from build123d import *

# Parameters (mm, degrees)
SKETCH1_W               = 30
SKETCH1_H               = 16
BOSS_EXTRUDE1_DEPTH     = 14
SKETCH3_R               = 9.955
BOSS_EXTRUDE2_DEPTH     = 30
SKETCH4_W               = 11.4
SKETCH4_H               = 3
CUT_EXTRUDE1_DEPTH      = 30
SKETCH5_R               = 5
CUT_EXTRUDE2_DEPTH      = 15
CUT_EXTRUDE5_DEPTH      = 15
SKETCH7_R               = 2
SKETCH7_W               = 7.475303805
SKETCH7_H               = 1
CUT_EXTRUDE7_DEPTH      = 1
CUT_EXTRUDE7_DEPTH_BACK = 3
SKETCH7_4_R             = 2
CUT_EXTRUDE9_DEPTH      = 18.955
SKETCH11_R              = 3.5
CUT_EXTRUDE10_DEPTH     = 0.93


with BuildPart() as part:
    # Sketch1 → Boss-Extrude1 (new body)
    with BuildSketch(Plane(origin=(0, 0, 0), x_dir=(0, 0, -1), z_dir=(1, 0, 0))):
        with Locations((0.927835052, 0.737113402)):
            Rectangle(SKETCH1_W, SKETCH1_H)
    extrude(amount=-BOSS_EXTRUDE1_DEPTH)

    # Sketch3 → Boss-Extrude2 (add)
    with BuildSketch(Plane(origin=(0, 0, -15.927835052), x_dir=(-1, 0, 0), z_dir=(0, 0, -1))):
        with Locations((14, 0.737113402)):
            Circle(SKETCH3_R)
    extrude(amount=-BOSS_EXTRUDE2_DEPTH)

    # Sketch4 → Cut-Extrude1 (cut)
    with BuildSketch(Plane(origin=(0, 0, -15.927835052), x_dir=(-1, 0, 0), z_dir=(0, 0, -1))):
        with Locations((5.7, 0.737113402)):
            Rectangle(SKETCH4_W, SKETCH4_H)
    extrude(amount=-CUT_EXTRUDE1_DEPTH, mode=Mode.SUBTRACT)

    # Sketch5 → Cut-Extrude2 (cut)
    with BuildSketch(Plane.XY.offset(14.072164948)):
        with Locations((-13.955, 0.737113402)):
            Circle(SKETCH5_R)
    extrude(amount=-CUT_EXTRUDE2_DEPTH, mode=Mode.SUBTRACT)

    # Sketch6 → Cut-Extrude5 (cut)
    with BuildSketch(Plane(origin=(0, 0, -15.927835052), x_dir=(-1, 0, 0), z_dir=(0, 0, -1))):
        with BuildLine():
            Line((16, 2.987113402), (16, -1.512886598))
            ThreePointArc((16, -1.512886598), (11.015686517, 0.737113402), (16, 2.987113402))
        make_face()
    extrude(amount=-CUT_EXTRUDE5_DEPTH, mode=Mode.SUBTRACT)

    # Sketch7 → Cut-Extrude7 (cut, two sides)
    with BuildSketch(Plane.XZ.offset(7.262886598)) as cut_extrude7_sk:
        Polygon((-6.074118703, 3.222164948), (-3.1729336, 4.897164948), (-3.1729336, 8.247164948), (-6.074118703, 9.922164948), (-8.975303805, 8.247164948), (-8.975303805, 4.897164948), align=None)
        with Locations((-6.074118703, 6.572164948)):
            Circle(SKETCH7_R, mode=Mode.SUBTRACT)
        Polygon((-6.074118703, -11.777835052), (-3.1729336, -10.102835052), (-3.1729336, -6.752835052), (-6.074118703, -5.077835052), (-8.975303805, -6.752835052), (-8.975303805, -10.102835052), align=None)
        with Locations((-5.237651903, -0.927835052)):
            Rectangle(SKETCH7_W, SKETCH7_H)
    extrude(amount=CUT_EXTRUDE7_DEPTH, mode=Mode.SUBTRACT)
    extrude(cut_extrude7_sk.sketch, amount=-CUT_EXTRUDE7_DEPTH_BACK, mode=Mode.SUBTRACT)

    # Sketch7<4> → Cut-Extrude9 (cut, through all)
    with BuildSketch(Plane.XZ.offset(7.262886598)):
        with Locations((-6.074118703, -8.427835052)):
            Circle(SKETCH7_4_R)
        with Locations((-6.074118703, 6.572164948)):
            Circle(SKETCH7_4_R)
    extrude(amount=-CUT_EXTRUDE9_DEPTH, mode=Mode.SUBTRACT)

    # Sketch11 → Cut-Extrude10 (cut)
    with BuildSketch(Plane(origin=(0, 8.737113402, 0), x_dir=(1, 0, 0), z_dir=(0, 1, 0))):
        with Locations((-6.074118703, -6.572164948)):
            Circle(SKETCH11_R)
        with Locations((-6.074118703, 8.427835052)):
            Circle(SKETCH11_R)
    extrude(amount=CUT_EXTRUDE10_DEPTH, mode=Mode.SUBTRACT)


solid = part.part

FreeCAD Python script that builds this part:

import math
import FreeCAD as App
import Part
import Sketcher

V = App.Vector
Q = App.Units.Quantity


def add_polygon(sketch, points):
    """Adds a closed chain of lines whose ends are joined by coincident constraints."""
    first, n = sketch.GeometryCount, len(points)
    for a, b in zip(points, points[1:] + points[:1]):
        sketch.addGeometry(Part.LineSegment(App.Vector(*a, 0), App.Vector(*b, 0)), False)
    for i in range(n):
        sketch.addConstraint(Sketcher.Constraint("Coincident", first + i, 2, first + (i + 1) % n, 1))

doc = App.newDocument("Part")
params = doc.addObject("Spreadsheet::Sheet", "Params")
for row, (alias, value) in enumerate([
    ("sketch1_width", "16 mm"),
    ("sketch1_height", "30 mm"),
    ("pad1_length", "14 mm"),
    ("sketch2_diameter", "19.91 mm"),
    ("pad2_length", "30 mm"),
    ("sketch3_height", "3 mm"),
    ("sketch3_width", "11.4 mm"),
    ("pocket1_length", "30 mm"),
    ("sketch4_diameter", "10 mm"),
    ("pocket2_length", "15 mm"),
    ("sketch5_radius", "3 mm"),
    ("sketch5_height", "4.5 mm"),
    ("pocket3_length", "15 mm"),
    ("sketch6_diameter", "4 mm"),
    ("sketch6_height", "1 mm"),
    ("sketch6_height2", "3.35 mm"),
    ("pocket4_length", "1 mm"),
    ("pocket4_length2", "3 mm"),
    ("sketch7_diameter", "4 mm"),
    ("sketch8_diameter", "7 mm"),
    ("pocket6_length", "0.93 mm"),
], start=1):
    params.set(f"A{row}", alias)
    params.set(f"B{row}", "=" + value)
    params.setAlias(f"B{row}", alias)

body = doc.addObject("PartDesign::Body", "Body")

# Sketch on YZ plane
sketch1 = body.newObject("Sketcher::SketchObject", "Sketch")
sketch1.AttachmentSupport = (doc.getObject("YZ_Plane"), [""])
sketch1.MapMode = "FlatFace"
add_polygon(sketch1, [(8.737113, 14.072165), (-7.262887, 14.072165), (-7.262887, -15.927835), (8.737113, -15.927835)])  # lines 0-3
sketch1.addConstraint(Sketcher.Constraint("Horizontal", 0))
sketch1.addConstraint(Sketcher.Constraint("Vertical", 1))
sketch1.addConstraint(Sketcher.Constraint("Horizontal", 2))
sketch1.addConstraint(Sketcher.Constraint("Vertical", 3))
sketch1.addConstraint(Sketcher.Constraint("DistanceX", 0, 2, 0, 1, 16.0))
sketch1.addConstraint(Sketcher.Constraint("DistanceY", 1, 2, 1, 1, 30.0))
sketch1.addConstraint(Sketcher.Constraint("DistanceX", 0, 2, -1, 1, 7.262887))
sketch1.addConstraint(Sketcher.Constraint("DistanceY", -1, 1, 0, 2, 14.072165))
sketch1.setExpression("Constraints[8]", "Params.sketch1_width")
sketch1.setExpression("Constraints[9]", "Params.sketch1_height")
pad1 = body.newObject("PartDesign::Pad", "Pad")
pad1.Profile = sketch1
pad1.setExpression("Length", "Params.pad1_length")
pad1.Reversed = True

# Sketch on XY plane
sketch2 = body.newObject("Sketcher::SketchObject", "Sketch001")
sketch2.AttachmentSupport = (doc.getObject("XY_Plane"), [""])
sketch2.MapMode = "FlatFace"
sketch2.AttachmentOffset = App.Placement(V(0, 0, -15.927835), App.Rotation())
sketch2.addGeometry(Part.Circle(V(-14, 0.737113, 0), V(0, 0, 1), 9.955), False)
sketch2.addConstraint(Sketcher.Constraint("Diameter", 0, 19.91))
sketch2.addConstraint(Sketcher.Constraint("DistanceX", 0, 3, -1, 1, 14.0))
sketch2.addConstraint(Sketcher.Constraint("DistanceY", -1, 1, 0, 3, 0.737113))
sketch2.setExpression("Constraints[0]", "Params.sketch2_diameter")
pad2 = body.newObject("PartDesign::Pad", "Pad001")
pad2.Profile = sketch2
pad2.setExpression("Length", "Params.pad2_length")

# Sketch on XY plane
sketch3 = body.newObject("Sketcher::SketchObject", "Sketch002")
sketch3.AttachmentSupport = (doc.getObject("XY_Plane"), [""])
sketch3.MapMode = "FlatFace"
sketch3.AttachmentOffset = App.Placement(V(0, 0, -15.927835), App.Rotation())
add_polygon(sketch3, [(0, 2.237113), (0, -0.762887), (-11.4, -0.762887), (-11.4, 2.237113)])  # lines 0-3
sketch3.addConstraint(Sketcher.Constraint("Vertical", 0))
sketch3.addConstraint(Sketcher.Constraint("Horizontal", 1))
sketch3.addConstraint(Sketcher.Constraint("Vertical", 2))
sketch3.addConstraint(Sketcher.Constraint("Horizontal", 3))
sketch3.addConstraint(Sketcher.Constraint("PointOnObject", 0, 2, -2))
sketch3.addConstraint(Sketcher.Constraint("DistanceY", 0, 2, 0, 1, 3.0))
sketch3.addConstraint(Sketcher.Constraint("DistanceX", 1, 2, 1, 1, 11.4))
sketch3.addConstraint(Sketcher.Constraint("DistanceY", 0, 2, -1, 1, 0.762887))
sketch3.setExpression("Constraints[9]", "Params.sketch3_height")
sketch3.setExpression("Constraints[10]", "Params.sketch3_width")
pocket1 = body.newObject("PartDesign::Pocket", "Pocket")
pocket1.Profile = sketch3
pocket1.setExpression("Length", "Params.pocket1_length")
pocket1.Reversed = True

# Sketch on XY plane
sketch4 = body.newObject("Sketcher::SketchObject", "Sketch003")
sketch4.AttachmentSupport = (doc.getObject("XY_Plane"), [""])
sketch4.MapMode = "FlatFace"
sketch4.AttachmentOffset = App.Placement(V(0, 0, 14.072165), App.Rotation())
sketch4.addGeometry(Part.Circle(V(-13.955, 0.737113, 0), V(0, 0, 1), 5), False)
sketch4.addConstraint(Sketcher.Constraint("Diameter", 0, 10.0))
sketch4.addConstraint(Sketcher.Constraint("DistanceX", 0, 3, -1, 1, 13.955))
sketch4.addConstraint(Sketcher.Constraint("DistanceY", -1, 1, 0, 3, 0.737113))
sketch4.setExpression("Constraints[0]", "Params.sketch4_diameter")
pocket2 = body.newObject("PartDesign::Pocket", "Pocket001")
pocket2.Profile = sketch4
pocket2.setExpression("Length", "Params.pocket2_length")

# Sketch on XY plane
sketch5 = body.newObject("Sketcher::SketchObject", "Sketch004")
sketch5.AttachmentSupport = (doc.getObject("XY_Plane"), [""])
sketch5.MapMode = "FlatFace"
sketch5.AttachmentOffset = App.Placement(V(0, 0, -15.927835), App.Rotation())
sketch5.addGeometry(Part.LineSegment(V(-16, -1.512887, 0), V(-16, 2.987113, 0)), False)
sketch5.addGeometry(Part.ArcOfCircle(Part.Circle(V(-14.015687, 0.737113, 0), V(0, 0, 1), 3), math.radians(-131.409622), math.radians(131.409622)), False)
sketch5.addConstraint(Sketcher.Constraint("Coincident", 0, 1, 1, 1))
sketch5.addConstraint(Sketcher.Constraint("Coincident", 1, 2, 0, 2))
sketch5.addConstraint(Sketcher.Constraint("Vertical", 0))
sketch5.addConstraint(Sketcher.Constraint("Radius", 1, 3.0))
sketch5.addConstraint(Sketcher.Constraint("DistanceY", 0, 1, 0, 2, 4.5))
sketch5.addConstraint(Sketcher.Constraint("DistanceX", 0, 1, -1, 1, 16.0))
sketch5.addConstraint(Sketcher.Constraint("DistanceY", -1, 1, 1, 3, 0.737113))
sketch5.setExpression("Constraints[3]", "Params.sketch5_radius")
sketch5.setExpression("Constraints[4]", "Params.sketch5_height")
pocket3 = body.newObject("PartDesign::Pocket", "Pocket002")
pocket3.Profile = sketch5
pocket3.setExpression("Length", "Params.pocket3_length")
pocket3.Reversed = True

# Sketch on XZ plane
sketch6 = body.newObject("Sketcher::SketchObject", "Sketch005")
sketch6.AttachmentSupport = (doc.getObject("XZ_Plane"), [""])
sketch6.MapMode = "FlatFace"
sketch6.AttachmentOffset = App.Placement(V(0, 0, 7.262887), App.Rotation())
add_polygon(sketch6, [(-6.074119, 3.222165), (-3.172934, 4.897165), (-3.172934, 8.247165), (-6.074119, 9.922165), (-8.975304, 8.247165), (-8.975304, 4.897165)])  # lines 0-5
sketch6.addGeometry(Part.Circle(V(-6.074119, 6.572165, 0), V(0, 0, 1), 2), False)  # 6
add_polygon(sketch6, [(-6.074119, -11.777835), (-3.172934, -10.102835), (-3.172934, -6.752835), (-6.074119, -5.077835), (-8.975304, -6.752835), (-8.975304, -10.102835)])  # lines 7-12
add_polygon(sketch6, [(-8.975304, -0.427835), (-8.975304, -1.427835), (-1.5, -1.427835), (-1.5, -0.427835)])  # lines 13-16
sketch6.addConstraint(Sketcher.Constraint("Vertical", 1))
sketch6.addConstraint(Sketcher.Constraint("Vertical", 4))
sketch6.addConstraint(Sketcher.Constraint("Vertical", 8))
sketch6.addConstraint(Sketcher.Constraint("Vertical", 11))
sketch6.addConstraint(Sketcher.Constraint("Vertical", 13))
sketch6.addConstraint(Sketcher.Constraint("Horizontal", 14))
sketch6.addConstraint(Sketcher.Constraint("Vertical", 15))
sketch6.addConstraint(Sketcher.Constraint("Horizontal", 16))
sketch6.addConstraint(Sketcher.Constraint("Parallel", 0, 3))
sketch6.addConstraint(Sketcher.Constraint("Parallel", 2, 5))
sketch6.addConstraint(Sketcher.Constraint("Parallel", 3, 7))
sketch6.addConstraint(Sketcher.Constraint("Parallel", 5, 9))
sketch6.addConstraint(Sketcher.Constraint("Parallel", 7, 10))
sketch6.addConstraint(Sketcher.Constraint("Parallel", 9, 12))
sketch6.addConstraint(Sketcher.Constraint("Horizontal", 1, 2, 3, 2))
sketch6.addConstraint(Sketcher.Constraint("Horizontal", 0, 2, 4, 2))
sketch6.addConstraint(Sketcher.Constraint("Horizontal", 8, 2, 10, 2))
sketch6.addConstraint(Sketcher.Constraint("Horizontal", 7, 2, 11, 2))
sketch6.addConstraint(Sketcher.Constraint("Vertical", 6, 3, 2, 2))
sketch6.addConstraint(Sketcher.Constraint("Vertical", 2, 2, 5, 2))
sketch6.addConstraint(Sketcher.Constraint("Vertical", 1, 2, 7, 2))
sketch6.addConstraint(Sketcher.Constraint("Vertical", 5, 2, 9, 2))
sketch6.addConstraint(Sketcher.Constraint("Vertical", 11, 2, 13, 2))
sketch6.addConstraint(Sketcher.Constraint("Equal", 4, 8))
sketch6.addConstraint(Sketcher.Constraint("Diameter", 6, 4.0))
sketch6.addConstraint(Sketcher.Constraint("DistanceY", 13, 2, 13, 1, 1.0))
sketch6.addConstraint(Sketcher.Constraint("Angle", 0, Q("30 deg")))
sketch6.addConstraint(Sketcher.Constraint("DistanceY", 7, 2, 0, 2, 15.0))
sketch6.addConstraint(Sketcher.Constraint("DistanceY", 1, 1, 1, 2, 3.35))
sketch6.addConstraint(Sketcher.Constraint("DistanceX", 14, 2, -1, 1, 1.5))
sketch6.addConstraint(Sketcher.Constraint("DistanceY", 9, 2, 5, 2, 8.3))
sketch6.addConstraint(Sketcher.Constraint("DistanceY", 6, 3, 2, 2, 3.35))
sketch6.addConstraint(Sketcher.Constraint("DistanceY", 9, 2, 13, 2, 3.65))
sketch6.addConstraint(Sketcher.Constraint("DistanceX", 14, 1, 14, 2, 7.475304))
sketch6.addConstraint(Sketcher.Constraint("DistanceY", -1, 1, 6, 3, 6.572165))
sketch6.setExpression("Constraints[40]", "Params.sketch6_diameter")
sketch6.setExpression("Constraints[41]", "Params.sketch6_height")
sketch6.setExpression("Constraints[44]", "Params.sketch6_height2")
pocket4 = body.newObject("PartDesign::Pocket", "Pocket003")
pocket4.Profile = sketch6
pocket4.Type = "TwoLengths"
pocket4.setExpression("Length", "Params.pocket4_length")
pocket4.setExpression("Length2", "Params.pocket4_length2")
pocket4.Reversed = True

# Sketch on XZ plane
sketch7 = body.newObject("Sketcher::SketchObject", "Sketch006")
sketch7.AttachmentSupport = (doc.getObject("XZ_Plane"), [""])
sketch7.MapMode = "FlatFace"
sketch7.AttachmentOffset = App.Placement(V(0, 0, 7.262887), App.Rotation())
sketch7.addGeometry(Part.Circle(V(-6.074119, -8.427835, 0), V(0, 0, 1), 2), False)
sketch7.addGeometry(Part.Circle(V(-6.074119, 6.572165, 0), V(0, 0, 1), 2), False)
sketch7.addConstraint(Sketcher.Constraint("Equal", 0, 1))
sketch7.addConstraint(Sketcher.Constraint("Vertical", 0, 3, 1, 3))
sketch7.addConstraint(Sketcher.Constraint("Diameter", 0, 4.0))
sketch7.addConstraint(Sketcher.Constraint("DistanceY", 0, 3, 1, 3, 15.0))
sketch7.addConstraint(Sketcher.Constraint("DistanceX", 0, 3, -1, 1, 6.074119))
sketch7.addConstraint(Sketcher.Constraint("DistanceY", 0, 3, -1, 1, 8.427835))
sketch7.setExpression("Constraints[2]", "Params.sketch7_diameter")
pocket5 = body.newObject("PartDesign::Pocket", "Pocket004")
pocket5.Profile = sketch7
pocket5.Type = "ThroughAll"

# Sketch on XZ plane
sketch8 = body.newObject("Sketcher::SketchObject", "Sketch007")
sketch8.AttachmentSupport = (doc.getObject("XZ_Plane"), [""])
sketch8.MapMode = "FlatFace"
sketch8.AttachmentOffset = App.Placement(V(0, 0, -8.737113), App.Rotation())
sketch8.addGeometry(Part.Circle(V(-6.074119, 6.572165, 0), V(0, 0, 1), 3.5), False)
sketch8.addGeometry(Part.Circle(V(-6.074119, -8.427835, 0), V(0, 0, 1), 3.5), False)
sketch8.addConstraint(Sketcher.Constraint("Equal", 0, 1))
sketch8.addConstraint(Sketcher.Constraint("Vertical", 0, 3, 1, 3))
sketch8.addConstraint(Sketcher.Constraint("Diameter", 0, 7.0))
sketch8.addConstraint(Sketcher.Constraint("DistanceY", 1, 3, 0, 3, 15.0))
sketch8.addConstraint(Sketcher.Constraint("DistanceX", 0, 3, -1, 1, 6.074119))
sketch8.addConstraint(Sketcher.Constraint("DistanceY", -1, 1, 0, 3, 6.572165))
sketch8.setExpression("Constraints[2]", "Params.sketch8_diameter")
pocket6 = body.newObject("PartDesign::Pocket", "Pocket005")
pocket6.Profile = sketch8
pocket6.setExpression("Length", "Params.pocket6_length")

doc.recompute()
